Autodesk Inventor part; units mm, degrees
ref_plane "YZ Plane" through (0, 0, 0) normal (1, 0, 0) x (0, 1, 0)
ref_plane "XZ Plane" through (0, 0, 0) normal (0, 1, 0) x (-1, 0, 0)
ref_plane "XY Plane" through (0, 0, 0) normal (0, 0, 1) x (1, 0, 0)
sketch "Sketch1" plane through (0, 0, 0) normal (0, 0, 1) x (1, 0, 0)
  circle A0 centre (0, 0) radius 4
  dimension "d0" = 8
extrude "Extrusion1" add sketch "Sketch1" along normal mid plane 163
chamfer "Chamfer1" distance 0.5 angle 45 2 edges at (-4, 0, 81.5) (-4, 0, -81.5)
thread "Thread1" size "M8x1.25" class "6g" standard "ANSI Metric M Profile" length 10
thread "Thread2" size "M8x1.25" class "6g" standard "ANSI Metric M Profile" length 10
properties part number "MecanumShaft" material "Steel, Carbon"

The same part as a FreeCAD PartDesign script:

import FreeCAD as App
import Part
import Sketcher
Q = App.Units.Quantity


def edges_at(feature, points):
    """Names of the edges that pass closest to the given points."""
    edges = feature.Shape.Edges
    near = lambda p: min(range(len(edges)), key=lambda i: edges[i].distToShape(Part.Vertex(*p))[0])
    return sorted({f"Edge{near(p) + 1}" for p in points})

doc = App.newDocument("Part")
body = doc.addObject("PartDesign::Body", "Body")

# Sketch on XY plane
sketch1 = body.newObject("Sketcher::SketchObject", "Sketch")
sketch1.AttachmentSupport = (doc.getObject("XY_Plane"), [""])
sketch1.MapMode = "FlatFace"
sketch1.addGeometry(Part.Circle(App.Vector(0, 0, 0), App.Vector(0, 0, 1), 4), False)
sketch1.addConstraint(Sketcher.Constraint("Coincident", 0, 3, -1, 1))
sketch1.addConstraint(Sketcher.Constraint("Diameter", 0, Q("8 mm")))
pad1 = body.newObject("PartDesign::Pad", "Pad")
pad1.Profile = sketch1
pad1.Length = 163
pad1.Midplane = True
doc.recompute()

chamfer = body.newObject("PartDesign::Chamfer", "Chamfer")
chamfer.Base = (pad1, edges_at(pad1, [(-4, 0, 81.5), (-4, 0, -81.5)]))
chamfer.Size = 0.5

doc.recompute()
